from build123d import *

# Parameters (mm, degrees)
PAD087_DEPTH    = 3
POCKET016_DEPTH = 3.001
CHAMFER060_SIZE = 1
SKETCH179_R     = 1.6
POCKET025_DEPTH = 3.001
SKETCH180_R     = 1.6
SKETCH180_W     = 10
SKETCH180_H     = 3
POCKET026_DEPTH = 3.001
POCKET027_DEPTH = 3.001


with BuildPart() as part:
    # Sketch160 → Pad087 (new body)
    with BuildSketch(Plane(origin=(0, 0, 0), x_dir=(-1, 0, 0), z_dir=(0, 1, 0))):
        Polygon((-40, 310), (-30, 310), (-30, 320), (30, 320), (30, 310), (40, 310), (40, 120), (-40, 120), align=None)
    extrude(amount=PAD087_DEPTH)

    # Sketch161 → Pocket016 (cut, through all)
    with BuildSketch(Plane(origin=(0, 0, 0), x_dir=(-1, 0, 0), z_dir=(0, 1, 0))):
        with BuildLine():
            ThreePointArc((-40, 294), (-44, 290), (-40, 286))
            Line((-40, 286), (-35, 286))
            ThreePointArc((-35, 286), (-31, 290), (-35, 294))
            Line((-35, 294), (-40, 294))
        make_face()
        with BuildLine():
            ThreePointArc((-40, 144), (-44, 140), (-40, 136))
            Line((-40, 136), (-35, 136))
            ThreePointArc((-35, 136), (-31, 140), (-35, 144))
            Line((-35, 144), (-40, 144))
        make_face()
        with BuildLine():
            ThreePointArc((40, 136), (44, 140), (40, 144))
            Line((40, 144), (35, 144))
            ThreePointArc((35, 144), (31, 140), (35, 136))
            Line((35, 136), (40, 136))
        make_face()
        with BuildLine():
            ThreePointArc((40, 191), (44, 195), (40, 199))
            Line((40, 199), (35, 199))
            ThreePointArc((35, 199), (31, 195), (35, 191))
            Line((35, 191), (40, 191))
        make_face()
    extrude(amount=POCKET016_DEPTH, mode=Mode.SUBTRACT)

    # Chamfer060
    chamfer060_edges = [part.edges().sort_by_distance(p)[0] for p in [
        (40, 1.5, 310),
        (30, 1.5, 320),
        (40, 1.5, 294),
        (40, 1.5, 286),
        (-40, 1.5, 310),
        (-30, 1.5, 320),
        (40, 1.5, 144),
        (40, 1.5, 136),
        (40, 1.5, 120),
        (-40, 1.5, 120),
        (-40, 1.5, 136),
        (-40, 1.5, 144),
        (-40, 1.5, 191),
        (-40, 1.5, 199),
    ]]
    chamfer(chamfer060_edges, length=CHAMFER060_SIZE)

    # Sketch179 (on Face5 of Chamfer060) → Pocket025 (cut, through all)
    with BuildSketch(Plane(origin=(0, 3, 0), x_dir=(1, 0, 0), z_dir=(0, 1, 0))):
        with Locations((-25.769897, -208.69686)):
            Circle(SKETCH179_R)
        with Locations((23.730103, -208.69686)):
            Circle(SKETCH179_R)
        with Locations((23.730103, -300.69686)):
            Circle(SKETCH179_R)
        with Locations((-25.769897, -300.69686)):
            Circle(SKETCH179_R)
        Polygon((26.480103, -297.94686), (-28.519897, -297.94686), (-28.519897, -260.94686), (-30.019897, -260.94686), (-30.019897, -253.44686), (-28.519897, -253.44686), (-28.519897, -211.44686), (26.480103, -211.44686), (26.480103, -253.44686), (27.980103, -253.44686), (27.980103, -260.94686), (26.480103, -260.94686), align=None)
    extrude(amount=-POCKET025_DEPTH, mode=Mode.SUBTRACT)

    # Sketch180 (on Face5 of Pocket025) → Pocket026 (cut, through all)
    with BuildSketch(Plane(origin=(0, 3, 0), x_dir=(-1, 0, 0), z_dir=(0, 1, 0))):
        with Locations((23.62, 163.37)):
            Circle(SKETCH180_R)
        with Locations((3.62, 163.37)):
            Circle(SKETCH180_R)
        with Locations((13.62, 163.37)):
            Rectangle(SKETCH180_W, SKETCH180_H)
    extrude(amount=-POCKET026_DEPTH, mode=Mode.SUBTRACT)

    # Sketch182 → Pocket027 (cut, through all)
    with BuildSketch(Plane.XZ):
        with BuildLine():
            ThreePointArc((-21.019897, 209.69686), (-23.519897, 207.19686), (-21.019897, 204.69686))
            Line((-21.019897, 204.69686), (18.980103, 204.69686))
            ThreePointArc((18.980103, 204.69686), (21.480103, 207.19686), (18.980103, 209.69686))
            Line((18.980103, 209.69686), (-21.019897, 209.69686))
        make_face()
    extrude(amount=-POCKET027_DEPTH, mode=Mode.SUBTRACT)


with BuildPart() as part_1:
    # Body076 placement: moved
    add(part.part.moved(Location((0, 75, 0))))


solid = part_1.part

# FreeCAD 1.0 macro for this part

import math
import FreeCAD as App
import Part
import Sketcher
from FreeCAD import Vector
Q = App.Units.Quantity


def edges_at(feature, points):
    """Names of the edges that pass closest to the given points."""
    edges = feature.Shape.Edges
    near = lambda p: min(range(len(edges)), key=lambda i: edges[i].distToShape(Part.Vertex(*p))[0])
    return sorted({f"Edge{near(p) + 1}" for p in points})


def add_polygon(sketch, points):
    """Adds a closed chain of lines whose ends are joined by coincident constraints."""
    first, n = sketch.GeometryCount, len(points)
    for a, b in zip(points, points[1:] + points[:1]):
        sketch.addGeometry(Part.LineSegment(App.Vector(*a, 0), App.Vector(*b, 0)), False)
    for i in range(n):
        sketch.addConstraint(Sketcher.Constraint("Coincident", first + i, 2, first + (i + 1) % n, 1))

doc = App.newDocument("Part")
body = doc.addObject("PartDesign::Body", "Body")

sketch1 = body.newObject("Sketcher::SketchObject", "Sketch")
sketch1.AttachmentSupport = (doc.getObject("XZ_Plane"), [""])
sketch1.MapMode = "FlatFace"
add_polygon(sketch1, [(30, 310), (40, 310), (40, 120), (-40, 120), (-40, 310), (-30, 310), (-30, 320), (30, 320)])
sketch1.addConstraint([
    Sketcher.Constraint("Horizontal", 0),
    Sketcher.Constraint("Vertical", 1),
    Sketcher.Constraint("Horizontal", 2),
    Sketcher.Constraint("Vertical", 3),
    Sketcher.Constraint("Horizontal", 4),
    Sketcher.Constraint("Vertical", 5),
    Sketcher.Constraint("Horizontal", 6),
    Sketcher.Constraint("Vertical", 7),
    Sketcher.Constraint("Symmetric", 0, 2, 3, 2, -2),
    Sketcher.Constraint("Equal", 0, 4),
    Sketcher.Constraint("Equal", 4, 5),
    Sketcher.Constraint("DistanceX", 0, 1, 0, 2, Q("10 mm")),
    Sketcher.Constraint("DistanceX", 2, 2, 2, 1, Q("80 mm")),
    Sketcher.Constraint("DistanceY", 1, 2, 1, 1, Q("190 mm")),
    Sketcher.Constraint("DistanceY", -1, 1, 0, 2, Q("310 mm")),
])
pad1 = body.newObject("PartDesign::Pad", "Pad")
pad1.Profile = sketch1
pad1.Length = 3
pad1.Reversed = True

sketch2 = body.newObject("Sketcher::SketchObject", "Sketch001")
sketch2.AttachmentSupport = (doc.getObject("XZ_Plane"), [""])
sketch2.MapMode = "FlatFace"
sketch2.addGeometry([
    Part.ArcOfCircle(Part.Circle(Vector(40, 290, 0), Vector(0, 0, 1), 4), math.radians(-90), math.radians(90)),
    Part.LineSegment(Vector(40, 286, 0), Vector(35, 286, 0)),
    Part.ArcOfCircle(Part.Circle(Vector(35, 290, 0), Vector(0, 0, 1), 4), math.radians(90), math.radians(270)),
    Part.LineSegment(Vector(35, 294, 0), Vector(40, 294, 0)),
    Part.ArcOfCircle(Part.Circle(Vector(40, 140, 0), Vector(0, 0, 1), 4), math.radians(-90), math.radians(90)),
    Part.LineSegment(Vector(40, 136, 0), Vector(35, 136, 0)),
    Part.ArcOfCircle(Part.Circle(Vector(35, 140, 0), Vector(0, 0, 1), 4), math.radians(90), math.radians(270)),
    Part.LineSegment(Vector(35, 144, 0), Vector(40, 144, 0)),
    Part.ArcOfCircle(Part.Circle(Vector(-40, 140, 0), Vector(0, 0, 1), 4), math.radians(90), math.radians(270)),
    Part.LineSegment(Vector(-40, 144, 0), Vector(-35, 144, 0)),
    Part.ArcOfCircle(Part.Circle(Vector(-35, 140, 0), Vector(0, 0, 1), 4), math.radians(-90), math.radians(90)),
    Part.LineSegment(Vector(-35, 136, 0), Vector(-40, 136, 0)),
    Part.ArcOfCircle(Part.Circle(Vector(-40, 195, 0), Vector(0, 0, 1), 4), math.radians(90), math.radians(270)),
    Part.LineSegment(Vector(-40, 199, 0), Vector(-35, 199, 0)),
    Part.ArcOfCircle(Part.Circle(Vector(-35, 195, 0), Vector(0, 0, 1), 4), math.radians(-90), math.radians(90)),
    Part.LineSegment(Vector(-35, 191, 0), Vector(-40, 191, 0)),
], False)
sketch2.addConstraint([
    Sketcher.Constraint("Tangent", 0, 1, 1, 1),
    Sketcher.Constraint("Tangent", 1, 2, 2, 2),
    Sketcher.Constraint("Tangent", 2, 1, 3, 1),
    Sketcher.Constraint("Tangent", 3, 2, 0, 2),
    Sketcher.Constraint("Tangent", 4, 1, 5, 1),
    Sketcher.Constraint("Tangent", 5, 2, 6, 2),
    Sketcher.Constraint("Tangent", 6, 1, 7, 1),
    Sketcher.Constraint("Tangent", 7, 2, 4, 2),
    Sketcher.Constraint("Tangent", 8, 1, 9, 1),
    Sketcher.Constraint("Tangent", 9, 2, 10, 2),
    Sketcher.Constraint("Tangent", 10, 1, 11, 1),
    Sketcher.Constraint("Tangent", 11, 2, 8, 2),
    Sketcher.Constraint("Tangent", 12, 1, 13, 1),
    Sketcher.Constraint("Tangent", 13, 2, 14, 2),
    Sketcher.Constraint("Tangent", 14, 1, 15, 1),
    Sketcher.Constraint("Tangent", 15, 2, 12, 2),
    Sketcher.Constraint("Horizontal", 1),
    Sketcher.Constraint("Horizontal", 3),
    Sketcher.Constraint("Horizontal", 5),
    Sketcher.Constraint("Horizontal", 7),
    Sketcher.Constraint("Horizontal", 9),
    Sketcher.Constraint("Horizontal", 11),
    Sketcher.Constraint("Horizontal", 13),
    Sketcher.Constraint("Horizontal", 15),
    Sketcher.Constraint("Equal", 2, 4),
    Sketcher.Constraint("Equal", 6, 8),
    Sketcher.Constraint("Equal", 10, 12),
    Sketcher.Constraint("Symmetric", 4, 3, 8, 3, -2),
    Sketcher.Constraint("Vertical", 0, 3, 4, 3),
    Sketcher.Constraint("Vertical", 2, 3, 6, 3),
    Sketcher.Constraint("Vertical", 8, 3, 12, 3),
    Sketcher.Constraint("Vertical", 10, 3, 14, 3),
    Sketcher.Constraint("Equal", 7, 9),
    Sketcher.Constraint("Radius", 0, Q("4 mm")),
    Sketcher.Constraint("DistanceX", 1, 2, 1, 1, Q("5 mm")),
    Sketcher.Constraint("DistanceX", -1, 1, 0, 3, Q("40 mm")),
    Sketcher.Constraint("DistanceY", -1, 1, 0, 3, Q("290 mm")),
    Sketcher.Constraint("DistanceY", -1, 1, 4, 3, Q("140 mm")),
    Sketcher.Constraint("DistanceY", -1, 1, 12, 3, Q("195 mm")),
])
pocket1 = body.newObject("PartDesign::Pocket", "Pocket")
pocket1.Profile = sketch2
pocket1.Type = "ThroughAll"
doc.recompute()

chamfer = body.newObject("PartDesign::Chamfer", "Chamfer")
chamfer.Base = (pocket1, edges_at(pocket1, [
    (40, 1.5, 310),
    (30, 1.5, 320),
    (40, 1.5, 294),
    (40, 1.5, 286),
    (-40, 1.5, 310),
    (-30, 1.5, 320),
    (40, 1.5, 144),
    (40, 1.5, 136),
    (40, 1.5, 120),
    (-40, 1.5, 120),
    (-40, 1.5, 136),
    (-40, 1.5, 144),
    (-40, 1.5, 191),
    (-40, 1.5, 199),
]))
chamfer.Size = 1

sketch3 = body.newObject("Sketcher::SketchObject", "Sketch002")
sketch3.AttachmentSupport = (doc.getObject("XZ_Plane"), [""])
sketch3.MapMode = "FlatFace"
sketch3.AttachmentOffset = App.Placement(Vector(0, 0, -3), App.Rotation())
sketch3.addGeometry(Part.Circle(Vector(-25.8, 208.7, 0), Vector(0, 0, 1), 1.6), False)
sketch3.addGeometry(Part.Circle(Vector(23.7, 208.7, 0), Vector(0, 0, 1), 1.6), False)
sketch3.addGeometry(Part.Circle(Vector(23.7, 300.7, 0), Vector(0, 0, 1), 1.6), False)
sketch3.addGeometry(Part.Circle(Vector(-25.8, 300.7, 0), Vector(0, 0, 1), 1.6), False)
add_polygon(sketch3, [(-28.5, 297.9), (26.5, 297.9), (26.5, 260.9), (28, 260.9), (28, 253.4), (26.5, 253.4), (26.5, 211.4), (-28.5, 211.4), (-28.5, 253.4), (-30, 253.4), (-30, 260.9), (-28.5, 260.9)])
sketch3.addConstraint([
    Sketcher.Constraint("Horizontal", 4),
    Sketcher.Constraint("Vertical", 5),
    Sketcher.Constraint("Horizontal", 6),
    Sketcher.Constraint("Vertical", 7),
    Sketcher.Constraint("Horizontal", 8),
    Sketcher.Constraint("Vertical", 9),
    Sketcher.Constraint("Horizontal", 10),
    Sketcher.Constraint("Vertical", 11),
    Sketcher.Constraint("Horizontal", 12),
    Sketcher.Constraint("Vertical", 13),
    Sketcher.Constraint("Horizontal", 14),
    Sketcher.Constraint("Vertical", 15),
    Sketcher.Constraint("Equal", 0, 1),
    Sketcher.Constraint("Equal", 1, 2),
    Sketcher.Constraint("Equal", 2, 3),
    Sketcher.Constraint("Horizontal", 0, 3, 1, 3),
    Sketcher.Constraint("Horizontal", 2, 3, 3, 3),
    Sketcher.Constraint("Horizontal", 8, 2, 11, 2),
    Sketcher.Constraint("Horizontal", 6, 2, 13, 2),
    Sketcher.Constraint("Vertical", 1, 3, 2, 3),
    Sketcher.Constraint("Vertical", 0, 3, 3, 3),
    Sketcher.Constraint("Vertical", 5, 2, 8, 2),
    Sketcher.Constraint("Vertical", 11, 2, 14, 2),
    Sketcher.Constraint("Equal", 8, 12),
    Sketcher.Constraint("Diameter", 0, Q("3.2 mm")),
    Sketcher.Constraint("DistanceX", 4, 1, 4, 2, Q("55 mm")),
    Sketcher.Constraint("DistanceY", 5, 2, 5, 1, Q("37 mm")),
    Sketcher.Constraint("DistanceY", 9, 2, 9, 1, Q("42 mm")),
    Sketcher.Constraint("DistanceX", 6, 1, 6, 2, Q("1.5 mm")),
    Sketcher.Constraint("DistanceY", 7, 2, 7, 1, Q("7.5 mm")),
    Sketcher.Constraint("DistanceY", 1, 3, 2, 3, Q("92 mm")),
    Sketcher.Constraint("DistanceX", 0, 3, 1, 3, Q("49.5 mm")),
    Sketcher.Constraint("DistanceX", 2, 3, 4, 2, Q("2.75 mm")),
    Sketcher.Constraint("DistanceY", 4, 2, 2, 3, Q("2.75 mm")),
    Sketcher.Constraint("DistanceY", -1, 1, 0, 3, Q("208.69686 mm")),
    Sketcher.Constraint("DistanceX", 0, 3, -1, 1, Q("25.769897 mm")),
])
pocket2 = body.newObject("PartDesign::Pocket", "Pocket001")
pocket2.Profile = sketch3
pocket2.Type = "ThroughAll"
pocket2.Reversed = True

sketch4 = body.newObject("Sketcher::SketchObject", "Sketch003")
sketch4.AttachmentSupport = (doc.getObject("XZ_Plane"), [""])
sketch4.MapMode = "FlatFace"
sketch4.AttachmentOffset = App.Placement(Vector(0, 0, -3), App.Rotation())
sketch4.addGeometry(Part.Circle(Vector(-23.6, 163.4, 0), Vector(0, 0, 1), 1.6), False)
sketch4.addGeometry(Part.Circle(Vector(-3.6, 163.4, 0), Vector(0, 0, 1), 1.6), False)
add_polygon(sketch4, [(-8.6, 164.9), (-8.6, 161.9), (-18.6, 161.9), (-18.6, 164.9)])
sketch4.addConstraint([
    Sketcher.Constraint("Vertical", 2),
    Sketcher.Constraint("Horizontal", 3),
    Sketcher.Constraint("Vertical", 4),
    Sketcher.Constraint("Horizontal", 5),
    Sketcher.Constraint("Equal", 0, 1),
    Sketcher.Constraint("Horizontal", 0, 3, 1, 3),
    Sketcher.Constraint("Diameter", 0, Q("3.2 mm")),
    Sketcher.Constraint("DistanceX", 3, 2, 3, 1, Q("10 mm")),
    Sketcher.Constraint("DistanceY", 2, 2, 2, 1, Q("3 mm")),
    Sketcher.Constraint("DistanceX", 0, 3, 1, 3, Q("20 mm")),
    Sketcher.Constraint("DistanceX", 2, 2, 1, 3, Q("5 mm")),
    Sketcher.Constraint("DistanceY", 2, 2, 1, 3, Q("1.5 mm")),
    Sketcher.Constraint("DistanceX", 0, 3, -1, 1, Q("23.62 mm")),
    Sketcher.Constraint("DistanceY", -1, 1, 0, 3, Q("163.37 mm")),
])
pocket3 = body.newObject("PartDesign::Pocket", "Pocket002")
pocket3.Profile = sketch4
pocket3.Type = "ThroughAll"
pocket3.Reversed = True

sketch5 = body.newObject("Sketcher::SketchObject", "Sketch004")
sketch5.AttachmentSupport = (doc.getObject("XZ_Plane"), [""])
sketch5.MapMode = "FlatFace"
sketch5.addGeometry([
    Part.ArcOfCircle(Part.Circle(Vector(-21, 207.2, 0), Vector(0, 0, 1), 2.5), math.radians(90), math.radians(270)),
    Part.LineSegment(Vector(-21, 204.7, 0), Vector(19, 204.7, 0)),
    Part.ArcOfCircle(Part.Circle(Vector(19, 207.2, 0), Vector(0, 0, 1), 2.5), math.radians(-90), math.radians(90)),
    Part.LineSegment(Vector(19, 209.7, 0), Vector(-21, 209.7, 0)),
], False)
sketch5.addConstraint([
    Sketcher.Constraint("Tangent", 0, 2, 1, 1),
    Sketcher.Constraint("Tangent", 1, 2, 2, 1),
    Sketcher.Constraint("Tangent", 2, 2, 3, 1),
    Sketcher.Constraint("Tangent", 3, 2, 0, 1),
    Sketcher.Constraint("Horizontal", 1),
    Sketcher.Constraint("Horizontal", 3),
    Sketcher.Constraint("Radius", 0, Q("2.5 mm")),
    Sketcher.Constraint("DistanceX", 1, 1, 1, 2, Q("40 mm")),
    Sketcher.Constraint("DistanceY", -1, 1, 0, 3, Q("207.19686 mm")),
    Sketcher.Constraint("DistanceX", 0, 3, -1, 1, Q("21.019897 mm")),
])
pocket4 = body.newObject("PartDesign::Pocket", "Pocket003")
pocket4.Profile = sketch5
pocket4.Type = "ThroughAll"
body2 = doc.addObject("PartDesign::Body", "Body001")
doc.recompute()

body.Placement = App.Placement(Vector(0, 75, 0), App.Rotation(Vector(0, 0, 1), 0))
boolean = body2.newObject("PartDesign::Boolean", "Boolean")
boolean.Type = "Fuse"
boolean.addObjects([body])

doc.recompute()
